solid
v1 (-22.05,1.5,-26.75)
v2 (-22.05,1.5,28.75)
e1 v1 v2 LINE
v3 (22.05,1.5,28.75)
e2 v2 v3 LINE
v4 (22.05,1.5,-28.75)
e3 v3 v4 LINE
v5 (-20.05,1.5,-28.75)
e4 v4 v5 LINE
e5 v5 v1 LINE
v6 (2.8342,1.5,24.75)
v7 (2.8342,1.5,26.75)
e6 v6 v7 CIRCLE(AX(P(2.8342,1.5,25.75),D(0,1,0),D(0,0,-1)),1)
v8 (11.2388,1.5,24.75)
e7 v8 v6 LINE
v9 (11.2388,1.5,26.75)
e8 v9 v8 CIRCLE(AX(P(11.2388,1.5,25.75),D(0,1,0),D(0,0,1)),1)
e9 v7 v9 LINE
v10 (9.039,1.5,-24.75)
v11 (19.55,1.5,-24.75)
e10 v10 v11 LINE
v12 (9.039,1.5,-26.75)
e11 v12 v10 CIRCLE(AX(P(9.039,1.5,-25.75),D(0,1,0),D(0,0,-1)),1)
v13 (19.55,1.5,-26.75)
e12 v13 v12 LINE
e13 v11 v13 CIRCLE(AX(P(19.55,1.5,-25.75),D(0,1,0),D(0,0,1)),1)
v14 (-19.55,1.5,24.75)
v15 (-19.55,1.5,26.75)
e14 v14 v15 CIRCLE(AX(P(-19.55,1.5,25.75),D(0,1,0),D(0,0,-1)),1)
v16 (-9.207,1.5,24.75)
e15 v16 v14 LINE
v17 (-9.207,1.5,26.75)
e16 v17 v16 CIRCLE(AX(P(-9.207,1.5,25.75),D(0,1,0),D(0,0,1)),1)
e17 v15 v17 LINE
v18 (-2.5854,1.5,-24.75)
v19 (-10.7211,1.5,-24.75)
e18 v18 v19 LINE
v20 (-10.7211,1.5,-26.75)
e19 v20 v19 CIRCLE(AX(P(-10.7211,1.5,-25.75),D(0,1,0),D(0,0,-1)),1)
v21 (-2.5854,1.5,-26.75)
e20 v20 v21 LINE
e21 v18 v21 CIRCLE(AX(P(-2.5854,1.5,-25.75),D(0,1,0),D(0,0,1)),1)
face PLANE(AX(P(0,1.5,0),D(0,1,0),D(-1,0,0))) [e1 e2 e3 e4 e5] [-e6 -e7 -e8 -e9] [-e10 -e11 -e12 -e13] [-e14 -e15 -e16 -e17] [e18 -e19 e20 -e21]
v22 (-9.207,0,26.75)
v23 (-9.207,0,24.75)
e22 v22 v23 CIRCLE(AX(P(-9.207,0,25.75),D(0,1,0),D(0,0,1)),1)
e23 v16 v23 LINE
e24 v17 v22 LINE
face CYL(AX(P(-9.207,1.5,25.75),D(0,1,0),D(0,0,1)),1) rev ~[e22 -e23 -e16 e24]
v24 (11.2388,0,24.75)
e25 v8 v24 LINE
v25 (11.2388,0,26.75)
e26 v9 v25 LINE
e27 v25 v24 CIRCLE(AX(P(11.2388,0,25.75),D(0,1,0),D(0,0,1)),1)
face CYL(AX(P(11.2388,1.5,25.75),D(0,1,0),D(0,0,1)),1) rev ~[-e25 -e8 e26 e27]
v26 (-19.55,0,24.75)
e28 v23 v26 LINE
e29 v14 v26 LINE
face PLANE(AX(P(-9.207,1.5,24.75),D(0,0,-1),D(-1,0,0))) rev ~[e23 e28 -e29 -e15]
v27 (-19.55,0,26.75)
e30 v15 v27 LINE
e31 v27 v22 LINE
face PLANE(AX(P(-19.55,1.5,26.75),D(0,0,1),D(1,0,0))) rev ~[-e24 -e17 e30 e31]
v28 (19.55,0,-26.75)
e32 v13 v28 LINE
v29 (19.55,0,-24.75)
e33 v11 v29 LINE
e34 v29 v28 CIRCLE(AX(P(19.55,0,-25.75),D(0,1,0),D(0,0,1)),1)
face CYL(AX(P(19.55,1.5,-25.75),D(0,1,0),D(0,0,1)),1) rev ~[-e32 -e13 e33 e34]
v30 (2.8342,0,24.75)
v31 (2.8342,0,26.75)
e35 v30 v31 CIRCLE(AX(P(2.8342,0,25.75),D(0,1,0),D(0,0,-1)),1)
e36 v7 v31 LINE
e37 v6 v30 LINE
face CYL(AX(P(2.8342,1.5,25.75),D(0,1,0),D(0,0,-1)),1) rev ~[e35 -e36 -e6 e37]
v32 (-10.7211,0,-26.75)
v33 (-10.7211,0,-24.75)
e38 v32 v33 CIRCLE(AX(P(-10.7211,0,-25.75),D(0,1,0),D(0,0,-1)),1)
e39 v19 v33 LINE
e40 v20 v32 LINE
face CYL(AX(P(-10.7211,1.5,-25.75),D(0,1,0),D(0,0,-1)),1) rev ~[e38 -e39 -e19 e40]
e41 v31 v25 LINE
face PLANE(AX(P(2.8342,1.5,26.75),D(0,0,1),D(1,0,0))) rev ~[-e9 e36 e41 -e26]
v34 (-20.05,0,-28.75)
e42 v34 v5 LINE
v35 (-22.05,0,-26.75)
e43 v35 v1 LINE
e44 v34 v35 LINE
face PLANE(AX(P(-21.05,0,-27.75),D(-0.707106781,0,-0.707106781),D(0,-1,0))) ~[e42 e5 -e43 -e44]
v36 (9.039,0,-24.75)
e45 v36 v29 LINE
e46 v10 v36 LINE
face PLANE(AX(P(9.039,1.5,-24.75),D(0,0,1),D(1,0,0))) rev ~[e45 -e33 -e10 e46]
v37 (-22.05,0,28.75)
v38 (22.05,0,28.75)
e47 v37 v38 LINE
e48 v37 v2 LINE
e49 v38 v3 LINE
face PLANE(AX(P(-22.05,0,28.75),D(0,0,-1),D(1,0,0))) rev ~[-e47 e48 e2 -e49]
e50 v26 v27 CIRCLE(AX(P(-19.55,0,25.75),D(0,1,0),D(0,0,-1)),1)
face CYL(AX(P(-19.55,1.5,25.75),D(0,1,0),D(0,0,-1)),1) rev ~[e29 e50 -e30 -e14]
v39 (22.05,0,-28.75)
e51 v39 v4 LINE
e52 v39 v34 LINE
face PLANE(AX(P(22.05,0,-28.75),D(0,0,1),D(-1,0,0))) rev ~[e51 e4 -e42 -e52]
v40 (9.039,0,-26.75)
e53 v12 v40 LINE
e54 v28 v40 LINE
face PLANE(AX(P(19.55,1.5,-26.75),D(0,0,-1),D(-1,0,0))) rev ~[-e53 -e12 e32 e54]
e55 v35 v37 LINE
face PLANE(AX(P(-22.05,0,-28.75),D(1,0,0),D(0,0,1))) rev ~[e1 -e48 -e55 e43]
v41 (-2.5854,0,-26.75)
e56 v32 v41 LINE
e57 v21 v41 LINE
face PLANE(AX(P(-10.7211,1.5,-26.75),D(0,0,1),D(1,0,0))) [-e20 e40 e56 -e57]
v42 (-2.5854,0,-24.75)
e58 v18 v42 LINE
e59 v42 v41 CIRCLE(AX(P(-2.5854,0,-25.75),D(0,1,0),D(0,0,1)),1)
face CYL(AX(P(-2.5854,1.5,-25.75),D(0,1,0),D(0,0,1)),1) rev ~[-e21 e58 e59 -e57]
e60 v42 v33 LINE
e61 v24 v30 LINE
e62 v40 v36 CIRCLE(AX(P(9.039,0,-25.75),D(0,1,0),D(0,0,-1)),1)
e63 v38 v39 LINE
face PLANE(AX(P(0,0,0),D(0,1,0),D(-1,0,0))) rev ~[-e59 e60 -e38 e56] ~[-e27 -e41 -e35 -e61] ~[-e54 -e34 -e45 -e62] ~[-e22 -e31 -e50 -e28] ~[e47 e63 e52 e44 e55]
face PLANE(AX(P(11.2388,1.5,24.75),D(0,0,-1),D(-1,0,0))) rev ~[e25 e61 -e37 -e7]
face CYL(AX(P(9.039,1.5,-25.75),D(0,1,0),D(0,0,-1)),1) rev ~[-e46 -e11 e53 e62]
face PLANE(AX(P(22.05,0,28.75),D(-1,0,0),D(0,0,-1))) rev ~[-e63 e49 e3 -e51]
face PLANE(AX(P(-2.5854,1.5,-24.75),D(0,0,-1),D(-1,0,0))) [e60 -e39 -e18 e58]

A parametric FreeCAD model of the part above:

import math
import FreeCAD as App
import Part
import Sketcher

V = App.Vector


def edges_at(feature, points):
    """Names of the edges that pass closest to the given points."""
    edges = feature.Shape.Edges
    near = lambda p: min(range(len(edges)), key=lambda i: edges[i].distToShape(Part.Vertex(*p))[0])
    return sorted({f"Edge{near(p) + 1}" for p in points})


def add_polygon(sketch, points):
    """Adds a closed chain of lines whose ends are joined by coincident constraints."""
    first, n = sketch.GeometryCount, len(points)
    for a, b in zip(points, points[1:] + points[:1]):
        sketch.addGeometry(Part.LineSegment(App.Vector(*a, 0), App.Vector(*b, 0)), False)
    for i in range(n):
        sketch.addConstraint(Sketcher.Constraint("Coincident", first + i, 2, first + (i + 1) % n, 1))

doc = App.newDocument("Part")
params = doc.addObject("Spreadsheet::Sheet", "Params")
for row, (alias, value) in enumerate([
    ("sketch1_width", "44.1 mm"),
    ("sketch1_height", "57.5 mm"),
    ("pad1_length", "1.5 mm"),
    ("sketch2_radius", "1 mm"),
    ("pocket1_length", "1.5 mm"),
    ("chamfer_size", "2 mm"),
], start=1):
    params.set(f"A{row}", alias)
    params.set(f"B{row}", "=" + value)
    params.setAlias(f"B{row}", alias)

body = doc.addObject("PartDesign::Body", "Body")

# Sketch on XZ plane
sketch1 = body.newObject("Sketcher::SketchObject", "Sketch")
sketch1.AttachmentSupport = (doc.getObject("XZ_Plane"), [""])
sketch1.MapMode = "FlatFace"
add_polygon(sketch1, [(22, 29), (22, -29), (-22, -29), (-22, 29)])  # lines 0-3
sketch1.addConstraint([
    Sketcher.Constraint("Vertical", 0),
    Sketcher.Constraint("Horizontal", 1),
    Sketcher.Constraint("Vertical", 2),
    Sketcher.Constraint("Horizontal", 3),
    Sketcher.Constraint("Symmetric", 0, 2, 2, 2, -1, 1),
    Sketcher.Constraint("DistanceX", 1, 2, 1, 1, 44.1),
    Sketcher.Constraint("DistanceY", 0, 2, 0, 1, 57.5),
])
sketch1.setExpression("Constraints[9]", "Params.sketch1_width")
sketch1.setExpression("Constraints[10]", "Params.sketch1_height")
pad1 = body.newObject("PartDesign::Pad", "Pad")
pad1.Profile = sketch1
pad1.setExpression("Length", "Params.pad1_length")
pad1.Reversed = True

# Sketch on XZ plane
sketch2 = body.newObject("Sketcher::SketchObject", "Sketch001")
sketch2.AttachmentSupport = (doc.getObject("XZ_Plane"), [""])
sketch2.MapMode = "FlatFace"
sketch2.AttachmentOffset = App.Placement(V(0, 0, -1.5), App.Rotation())
sketch2.addGeometry([
    Part.ArcOfCircle(Part.Circle(V(19.6, -25.8, 0), V(0, 0, 1), 1), math.radians(-90), math.radians(90)),  # 0
    Part.LineSegment(V(19.6, -26.8, 0), V(9, -26.8, 0)),  # 1
    Part.ArcOfCircle(Part.Circle(V(9, -25.8, 0), V(0, 0, 1), 1), math.radians(90), math.radians(270)),  # 2
    Part.LineSegment(V(9, -24.8, 0), V(19.6, -24.8, 0)),  # 3
    Part.LineSegment(V(-10.7, -24.8, 0), V(-2.6, -24.8, 0)),  # 4
    Part.ArcOfCircle(Part.Circle(V(-2.6, -25.8, 0), V(0, 0, 1), 1), math.radians(-90), math.radians(90)),  # 5
    Part.LineSegment(V(-2.6, -26.8, 0), V(-10.7, -26.8, 0)),  # 6
    Part.ArcOfCircle(Part.Circle(V(-10.7, -25.8, 0), V(0, 0, 1), 1), math.radians(90), math.radians(270)),  # 7
    Part.ArcOfCircle(Part.Circle(V(-19.6, 25.8, 0), V(0, 0, 1), 1), math.radians(90), math.radians(270)),  # 8
    Part.LineSegment(V(-19.6, 26.8, 0), V(-9.2, 26.8, 0)),  # 9
    Part.ArcOfCircle(Part.Circle(V(-9.2, 25.8, 0), V(0, 0, 1), 1), math.radians(-90), math.radians(90)),  # 10
    Part.LineSegment(V(-9.2, 24.8, 0), V(-19.6, 24.8, 0)),  # 11
    Part.ArcOfCircle(Part.Circle(V(2.8, 25.8, 0), V(0, 0, 1), 1), math.radians(90), math.radians(270)),  # 12
    Part.LineSegment(V(2.8, 26.8, 0), V(11.2, 26.8, 0)),  # 13
    Part.ArcOfCircle(Part.Circle(V(11.2, 25.8, 0), V(0, 0, 1), 1), math.radians(-90), math.radians(90)),  # 14
    Part.LineSegment(V(11.2, 24.8, 0), V(2.8, 24.8, 0)),  # 15
], False)
sketch2.addConstraint([
    Sketcher.Constraint("Tangent", 0, 1, 1, 1),
    Sketcher.Constraint("Tangent", 1, 2, 2, 2),
    Sketcher.Constraint("Tangent", 2, 1, 3, 1),
    Sketcher.Constraint("Tangent", 3, 2, 0, 2),
    Sketcher.Constraint("Tangent", 4, 2, 5, 2),
    Sketcher.Constraint("Tangent", 5, 1, 6, 1),
    Sketcher.Constraint("Tangent", 6, 2, 7, 2),
    Sketcher.Constraint("Tangent", 7, 1, 4, 1),
    Sketcher.Constraint("Tangent", 8, 1, 9, 1),
    Sketcher.Constraint("Tangent", 9, 2, 10, 2),
    Sketcher.Constraint("Tangent", 10, 1, 11, 1),
    Sketcher.Constraint("Tangent", 11, 2, 8, 2),
    Sketcher.Constraint("Tangent", 12, 1, 13, 1),
    Sketcher.Constraint("Tangent", 13, 2, 14, 2),
    Sketcher.Constraint("Tangent", 14, 1, 15, 1),
    Sketcher.Constraint("Tangent", 15, 2, 12, 2),
    Sketcher.Constraint("Horizontal", 1),
    Sketcher.Constraint("Horizontal", 3),
    Sketcher.Constraint("Horizontal", 4),
    Sketcher.Constraint("Horizontal", 6),
    Sketcher.Constraint("Horizontal", 9),
    Sketcher.Constraint("Horizontal", 11),
    Sketcher.Constraint("Horizontal", 13),
    Sketcher.Constraint("Horizontal", 15),
    Sketcher.Constraint("Equal", 2, 5),
    Sketcher.Constraint("Equal", 7, 8),
    Sketcher.Constraint("Equal", 10, 12),
    Sketcher.Constraint("Symmetric", 0, 3, 8, 3, -1, 1),
    Sketcher.Constraint("Horizontal", 2, 3, 5, 3),
    Sketcher.Constraint("Horizontal", 10, 3, 12, 3),
    Sketcher.Constraint("Radius", 0, 1.0),
    Sketcher.Constraint("DistanceY", 7, 3, 8, 3, 51.5),
    Sketcher.Constraint("DistanceX", 8, 3, 0, 3, 39.1),
    Sketcher.Constraint("DistanceX", 1, 2, 1, 1, 10.511),
    Sketcher.Constraint("DistanceX", 9, 1, 9, 2, 10.343),
    Sketcher.Constraint("DistanceX", 7, 3, 2, 3, 19.76),
    Sketcher.Constraint("DistanceX", 4, 1, 4, 2, 8.1357),
    Sketcher.Constraint("DistanceX", 13, 1, 13, 2, 8.4046),
    Sketcher.Constraint("DistanceX", -1, 1, 12, 3, 2.8342),
])
sketch2.setExpression("Constraints[30]", "Params.sketch2_radius")
pocket1 = body.newObject("PartDesign::Pocket", "Pocket")
pocket1.Profile = sketch2
pocket1.setExpression("Length", "Params.pocket1_length")
pocket1.Reversed = True
doc.recompute()

chamfer = body.newObject("PartDesign::Chamfer", "Chamfer")
chamfer.Base = (pocket1, edges_at(pocket1, [(-22.05, 0.75, -28.75)]))
chamfer.setExpression("Size", "Params.chamfer_size")

doc.recompute()
